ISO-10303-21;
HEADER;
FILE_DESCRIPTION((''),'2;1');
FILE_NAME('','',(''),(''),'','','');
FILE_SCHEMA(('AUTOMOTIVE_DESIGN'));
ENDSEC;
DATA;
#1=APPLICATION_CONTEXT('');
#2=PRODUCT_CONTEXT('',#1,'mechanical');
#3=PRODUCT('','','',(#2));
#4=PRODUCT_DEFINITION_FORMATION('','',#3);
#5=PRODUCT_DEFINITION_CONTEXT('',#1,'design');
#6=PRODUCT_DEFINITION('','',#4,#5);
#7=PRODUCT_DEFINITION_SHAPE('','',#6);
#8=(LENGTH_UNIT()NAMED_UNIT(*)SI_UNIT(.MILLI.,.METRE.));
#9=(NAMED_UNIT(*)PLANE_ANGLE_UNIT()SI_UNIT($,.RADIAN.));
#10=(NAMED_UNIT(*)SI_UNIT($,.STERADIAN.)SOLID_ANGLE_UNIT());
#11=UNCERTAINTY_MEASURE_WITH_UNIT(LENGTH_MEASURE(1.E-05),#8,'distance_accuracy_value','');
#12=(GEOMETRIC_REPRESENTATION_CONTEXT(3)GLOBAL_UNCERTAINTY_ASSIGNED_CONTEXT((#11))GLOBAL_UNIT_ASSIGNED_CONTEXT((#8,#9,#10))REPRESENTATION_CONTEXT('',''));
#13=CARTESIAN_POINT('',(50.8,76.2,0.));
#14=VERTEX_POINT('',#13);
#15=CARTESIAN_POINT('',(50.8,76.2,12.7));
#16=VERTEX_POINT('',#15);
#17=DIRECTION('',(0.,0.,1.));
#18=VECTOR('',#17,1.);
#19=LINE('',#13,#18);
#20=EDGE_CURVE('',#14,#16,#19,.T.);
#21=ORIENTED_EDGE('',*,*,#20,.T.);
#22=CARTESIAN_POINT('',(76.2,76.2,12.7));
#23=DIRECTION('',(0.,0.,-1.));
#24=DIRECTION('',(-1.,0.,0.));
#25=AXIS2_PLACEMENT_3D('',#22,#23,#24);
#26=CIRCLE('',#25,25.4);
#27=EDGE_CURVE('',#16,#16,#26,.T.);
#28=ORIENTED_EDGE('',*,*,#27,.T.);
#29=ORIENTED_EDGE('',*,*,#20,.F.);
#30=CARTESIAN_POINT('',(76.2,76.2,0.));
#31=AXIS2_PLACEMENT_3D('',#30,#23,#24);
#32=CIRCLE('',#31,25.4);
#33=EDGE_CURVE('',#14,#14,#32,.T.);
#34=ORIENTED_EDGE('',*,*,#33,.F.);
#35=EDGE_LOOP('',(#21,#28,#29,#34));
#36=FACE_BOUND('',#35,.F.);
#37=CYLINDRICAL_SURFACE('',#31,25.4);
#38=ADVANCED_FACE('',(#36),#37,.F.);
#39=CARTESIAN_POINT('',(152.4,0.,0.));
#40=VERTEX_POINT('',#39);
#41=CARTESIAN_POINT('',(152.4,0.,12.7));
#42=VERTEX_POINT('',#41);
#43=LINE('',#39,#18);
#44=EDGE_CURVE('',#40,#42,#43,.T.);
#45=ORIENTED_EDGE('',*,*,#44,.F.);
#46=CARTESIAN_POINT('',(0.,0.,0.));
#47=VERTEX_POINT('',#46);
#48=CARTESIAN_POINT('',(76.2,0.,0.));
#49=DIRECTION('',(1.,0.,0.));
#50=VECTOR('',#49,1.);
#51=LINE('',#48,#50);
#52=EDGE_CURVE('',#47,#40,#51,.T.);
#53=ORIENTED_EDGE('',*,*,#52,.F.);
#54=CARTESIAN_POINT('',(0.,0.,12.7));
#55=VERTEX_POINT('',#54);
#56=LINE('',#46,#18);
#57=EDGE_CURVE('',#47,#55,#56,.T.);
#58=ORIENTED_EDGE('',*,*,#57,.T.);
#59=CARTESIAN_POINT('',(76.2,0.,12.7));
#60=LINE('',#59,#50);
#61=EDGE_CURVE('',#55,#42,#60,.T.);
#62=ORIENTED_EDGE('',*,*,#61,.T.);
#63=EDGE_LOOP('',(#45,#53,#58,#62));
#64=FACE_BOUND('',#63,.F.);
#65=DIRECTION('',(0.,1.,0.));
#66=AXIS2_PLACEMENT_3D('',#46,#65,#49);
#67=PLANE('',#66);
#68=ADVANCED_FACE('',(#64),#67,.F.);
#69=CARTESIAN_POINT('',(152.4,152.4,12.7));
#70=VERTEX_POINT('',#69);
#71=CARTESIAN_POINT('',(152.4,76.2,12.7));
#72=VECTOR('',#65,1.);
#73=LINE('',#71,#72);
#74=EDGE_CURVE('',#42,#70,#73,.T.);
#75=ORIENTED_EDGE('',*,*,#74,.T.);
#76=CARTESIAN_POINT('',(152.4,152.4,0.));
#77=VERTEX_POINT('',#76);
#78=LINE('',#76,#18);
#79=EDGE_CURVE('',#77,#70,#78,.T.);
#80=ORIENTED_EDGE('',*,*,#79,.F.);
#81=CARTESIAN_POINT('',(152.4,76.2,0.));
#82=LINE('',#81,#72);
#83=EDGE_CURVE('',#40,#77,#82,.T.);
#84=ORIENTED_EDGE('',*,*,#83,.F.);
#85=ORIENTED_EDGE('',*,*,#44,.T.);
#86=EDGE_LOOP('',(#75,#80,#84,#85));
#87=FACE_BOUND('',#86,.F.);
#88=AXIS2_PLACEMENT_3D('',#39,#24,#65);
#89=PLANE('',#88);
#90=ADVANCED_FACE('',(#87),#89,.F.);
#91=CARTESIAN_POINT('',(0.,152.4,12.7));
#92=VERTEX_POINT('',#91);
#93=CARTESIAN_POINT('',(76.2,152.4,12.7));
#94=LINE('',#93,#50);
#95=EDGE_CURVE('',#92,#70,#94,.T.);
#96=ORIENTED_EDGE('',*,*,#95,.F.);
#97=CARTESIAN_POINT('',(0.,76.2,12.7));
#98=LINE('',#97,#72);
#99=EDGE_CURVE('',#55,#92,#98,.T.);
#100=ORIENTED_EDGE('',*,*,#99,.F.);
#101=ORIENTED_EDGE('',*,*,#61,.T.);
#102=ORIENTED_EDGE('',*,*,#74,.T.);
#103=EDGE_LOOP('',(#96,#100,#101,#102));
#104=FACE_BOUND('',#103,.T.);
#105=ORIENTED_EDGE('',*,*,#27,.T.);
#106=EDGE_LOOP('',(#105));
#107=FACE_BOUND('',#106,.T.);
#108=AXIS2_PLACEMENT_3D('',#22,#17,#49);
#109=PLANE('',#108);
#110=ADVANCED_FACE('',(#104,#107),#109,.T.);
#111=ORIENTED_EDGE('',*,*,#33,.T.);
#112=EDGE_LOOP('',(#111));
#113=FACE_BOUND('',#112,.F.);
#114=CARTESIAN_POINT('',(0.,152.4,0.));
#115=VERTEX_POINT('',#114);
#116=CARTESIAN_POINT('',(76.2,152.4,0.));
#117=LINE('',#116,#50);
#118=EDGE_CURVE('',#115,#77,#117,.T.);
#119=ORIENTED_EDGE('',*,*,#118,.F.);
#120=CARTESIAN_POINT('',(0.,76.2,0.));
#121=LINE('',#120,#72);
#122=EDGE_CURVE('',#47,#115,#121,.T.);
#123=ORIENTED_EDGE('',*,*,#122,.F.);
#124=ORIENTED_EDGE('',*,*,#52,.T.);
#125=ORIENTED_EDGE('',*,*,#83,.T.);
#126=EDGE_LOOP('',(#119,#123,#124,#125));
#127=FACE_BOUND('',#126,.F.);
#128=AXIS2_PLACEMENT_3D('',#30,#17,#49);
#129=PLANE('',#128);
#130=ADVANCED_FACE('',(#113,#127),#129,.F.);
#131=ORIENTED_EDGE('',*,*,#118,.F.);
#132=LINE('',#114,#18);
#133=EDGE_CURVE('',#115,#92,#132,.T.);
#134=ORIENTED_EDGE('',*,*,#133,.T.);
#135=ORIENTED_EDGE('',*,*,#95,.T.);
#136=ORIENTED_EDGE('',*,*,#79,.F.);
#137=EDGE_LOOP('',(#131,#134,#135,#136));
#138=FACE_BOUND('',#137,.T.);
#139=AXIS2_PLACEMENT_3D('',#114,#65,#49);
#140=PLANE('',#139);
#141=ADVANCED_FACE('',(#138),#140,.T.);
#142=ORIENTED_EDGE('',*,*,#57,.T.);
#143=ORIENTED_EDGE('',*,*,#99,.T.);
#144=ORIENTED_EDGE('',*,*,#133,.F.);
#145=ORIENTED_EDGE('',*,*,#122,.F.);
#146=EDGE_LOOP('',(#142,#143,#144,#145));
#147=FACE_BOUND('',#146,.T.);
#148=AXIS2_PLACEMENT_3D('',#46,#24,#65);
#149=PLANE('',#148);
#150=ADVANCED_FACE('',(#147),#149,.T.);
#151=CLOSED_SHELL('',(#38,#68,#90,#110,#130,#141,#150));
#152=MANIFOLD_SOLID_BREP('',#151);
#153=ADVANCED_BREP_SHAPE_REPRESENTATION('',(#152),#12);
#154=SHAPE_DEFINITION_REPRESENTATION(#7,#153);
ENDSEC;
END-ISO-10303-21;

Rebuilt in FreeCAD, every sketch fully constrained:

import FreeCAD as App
import Part
import Sketcher

V = App.Vector
Q = App.Units.Quantity

doc = App.newDocument("Part")
body = doc.addObject("PartDesign::Body", "Body")

# Sketch on XY plane
sketch1 = doc.addObject("Sketcher::SketchObject", "Sketch")
body.addObject(sketch1)
sketch1.AttachmentSupport = (doc.XY_Plane, [""])
sketch1.MapMode = "FlatFace"
sketch1.addGeometry([
    Part.LineSegment(V(0, 152, 0), V(0, 0, 0)),
    Part.LineSegment(V(0, 0, 0), V(152, 0, 0)),
    Part.LineSegment(V(152, 0, 0), V(152, 152, 0)),
    Part.LineSegment(V(152, 152, 0), V(0, 152, 0)),
], False)
sketch1.addConstraint([
    Sketcher.Constraint("Coincident", 0, 2, 1, 1),
    Sketcher.Constraint("Coincident", 1, 2, 2, 1),
    Sketcher.Constraint("Coincident", 2, 2, 3, 1),
    Sketcher.Constraint("Coincident", 3, 2, 0, 1),
    Sketcher.Constraint("Vertical", 0),
    Sketcher.Constraint("Horizontal", 1),
    Sketcher.Constraint("Vertical", 2),
    Sketcher.Constraint("Horizontal", 3),
    Sketcher.Constraint("Coincident", 0, 2, -1, 1),
    Sketcher.Constraint("Equal", 3, 0),
    Sketcher.Constraint("DistanceX", 1, 1, 1, 2, Q("6 in")),
])
pad1 = doc.addObject("PartDesign::Pad", "Pad")
body.addObject(pad1)
pad1.Profile = sketch1
pad1.Length = Q("0.5 in")

# Sketch on XY plane
sketch2 = doc.addObject("Sketcher::SketchObject", "Sketch001")
body.addObject(sketch2)
sketch2.AttachmentSupport = (doc.XY_Plane, [""])
sketch2.MapMode = "FlatFace"
sketch2.addGeometry(Part.Circle(V(76, 76, 0), V(0, 0, 1), 25), False)
sketch2.addConstraint([
    Sketcher.Constraint("Diameter", 0, Q("2 in")),
    Sketcher.Constraint("DistanceX", -1, 1, 0, 3, Q("3 in")),
    Sketcher.Constraint("DistanceY", -1, 1, 0, 3, Q("3 in")),
])
pocket1 = doc.addObject("PartDesign::Pocket", "Pocket")
body.addObject(pocket1)
pocket1.Profile = sketch2
pocket1.Length = Q("0.5 in")
pocket1.Reversed = True

doc.recompute()
